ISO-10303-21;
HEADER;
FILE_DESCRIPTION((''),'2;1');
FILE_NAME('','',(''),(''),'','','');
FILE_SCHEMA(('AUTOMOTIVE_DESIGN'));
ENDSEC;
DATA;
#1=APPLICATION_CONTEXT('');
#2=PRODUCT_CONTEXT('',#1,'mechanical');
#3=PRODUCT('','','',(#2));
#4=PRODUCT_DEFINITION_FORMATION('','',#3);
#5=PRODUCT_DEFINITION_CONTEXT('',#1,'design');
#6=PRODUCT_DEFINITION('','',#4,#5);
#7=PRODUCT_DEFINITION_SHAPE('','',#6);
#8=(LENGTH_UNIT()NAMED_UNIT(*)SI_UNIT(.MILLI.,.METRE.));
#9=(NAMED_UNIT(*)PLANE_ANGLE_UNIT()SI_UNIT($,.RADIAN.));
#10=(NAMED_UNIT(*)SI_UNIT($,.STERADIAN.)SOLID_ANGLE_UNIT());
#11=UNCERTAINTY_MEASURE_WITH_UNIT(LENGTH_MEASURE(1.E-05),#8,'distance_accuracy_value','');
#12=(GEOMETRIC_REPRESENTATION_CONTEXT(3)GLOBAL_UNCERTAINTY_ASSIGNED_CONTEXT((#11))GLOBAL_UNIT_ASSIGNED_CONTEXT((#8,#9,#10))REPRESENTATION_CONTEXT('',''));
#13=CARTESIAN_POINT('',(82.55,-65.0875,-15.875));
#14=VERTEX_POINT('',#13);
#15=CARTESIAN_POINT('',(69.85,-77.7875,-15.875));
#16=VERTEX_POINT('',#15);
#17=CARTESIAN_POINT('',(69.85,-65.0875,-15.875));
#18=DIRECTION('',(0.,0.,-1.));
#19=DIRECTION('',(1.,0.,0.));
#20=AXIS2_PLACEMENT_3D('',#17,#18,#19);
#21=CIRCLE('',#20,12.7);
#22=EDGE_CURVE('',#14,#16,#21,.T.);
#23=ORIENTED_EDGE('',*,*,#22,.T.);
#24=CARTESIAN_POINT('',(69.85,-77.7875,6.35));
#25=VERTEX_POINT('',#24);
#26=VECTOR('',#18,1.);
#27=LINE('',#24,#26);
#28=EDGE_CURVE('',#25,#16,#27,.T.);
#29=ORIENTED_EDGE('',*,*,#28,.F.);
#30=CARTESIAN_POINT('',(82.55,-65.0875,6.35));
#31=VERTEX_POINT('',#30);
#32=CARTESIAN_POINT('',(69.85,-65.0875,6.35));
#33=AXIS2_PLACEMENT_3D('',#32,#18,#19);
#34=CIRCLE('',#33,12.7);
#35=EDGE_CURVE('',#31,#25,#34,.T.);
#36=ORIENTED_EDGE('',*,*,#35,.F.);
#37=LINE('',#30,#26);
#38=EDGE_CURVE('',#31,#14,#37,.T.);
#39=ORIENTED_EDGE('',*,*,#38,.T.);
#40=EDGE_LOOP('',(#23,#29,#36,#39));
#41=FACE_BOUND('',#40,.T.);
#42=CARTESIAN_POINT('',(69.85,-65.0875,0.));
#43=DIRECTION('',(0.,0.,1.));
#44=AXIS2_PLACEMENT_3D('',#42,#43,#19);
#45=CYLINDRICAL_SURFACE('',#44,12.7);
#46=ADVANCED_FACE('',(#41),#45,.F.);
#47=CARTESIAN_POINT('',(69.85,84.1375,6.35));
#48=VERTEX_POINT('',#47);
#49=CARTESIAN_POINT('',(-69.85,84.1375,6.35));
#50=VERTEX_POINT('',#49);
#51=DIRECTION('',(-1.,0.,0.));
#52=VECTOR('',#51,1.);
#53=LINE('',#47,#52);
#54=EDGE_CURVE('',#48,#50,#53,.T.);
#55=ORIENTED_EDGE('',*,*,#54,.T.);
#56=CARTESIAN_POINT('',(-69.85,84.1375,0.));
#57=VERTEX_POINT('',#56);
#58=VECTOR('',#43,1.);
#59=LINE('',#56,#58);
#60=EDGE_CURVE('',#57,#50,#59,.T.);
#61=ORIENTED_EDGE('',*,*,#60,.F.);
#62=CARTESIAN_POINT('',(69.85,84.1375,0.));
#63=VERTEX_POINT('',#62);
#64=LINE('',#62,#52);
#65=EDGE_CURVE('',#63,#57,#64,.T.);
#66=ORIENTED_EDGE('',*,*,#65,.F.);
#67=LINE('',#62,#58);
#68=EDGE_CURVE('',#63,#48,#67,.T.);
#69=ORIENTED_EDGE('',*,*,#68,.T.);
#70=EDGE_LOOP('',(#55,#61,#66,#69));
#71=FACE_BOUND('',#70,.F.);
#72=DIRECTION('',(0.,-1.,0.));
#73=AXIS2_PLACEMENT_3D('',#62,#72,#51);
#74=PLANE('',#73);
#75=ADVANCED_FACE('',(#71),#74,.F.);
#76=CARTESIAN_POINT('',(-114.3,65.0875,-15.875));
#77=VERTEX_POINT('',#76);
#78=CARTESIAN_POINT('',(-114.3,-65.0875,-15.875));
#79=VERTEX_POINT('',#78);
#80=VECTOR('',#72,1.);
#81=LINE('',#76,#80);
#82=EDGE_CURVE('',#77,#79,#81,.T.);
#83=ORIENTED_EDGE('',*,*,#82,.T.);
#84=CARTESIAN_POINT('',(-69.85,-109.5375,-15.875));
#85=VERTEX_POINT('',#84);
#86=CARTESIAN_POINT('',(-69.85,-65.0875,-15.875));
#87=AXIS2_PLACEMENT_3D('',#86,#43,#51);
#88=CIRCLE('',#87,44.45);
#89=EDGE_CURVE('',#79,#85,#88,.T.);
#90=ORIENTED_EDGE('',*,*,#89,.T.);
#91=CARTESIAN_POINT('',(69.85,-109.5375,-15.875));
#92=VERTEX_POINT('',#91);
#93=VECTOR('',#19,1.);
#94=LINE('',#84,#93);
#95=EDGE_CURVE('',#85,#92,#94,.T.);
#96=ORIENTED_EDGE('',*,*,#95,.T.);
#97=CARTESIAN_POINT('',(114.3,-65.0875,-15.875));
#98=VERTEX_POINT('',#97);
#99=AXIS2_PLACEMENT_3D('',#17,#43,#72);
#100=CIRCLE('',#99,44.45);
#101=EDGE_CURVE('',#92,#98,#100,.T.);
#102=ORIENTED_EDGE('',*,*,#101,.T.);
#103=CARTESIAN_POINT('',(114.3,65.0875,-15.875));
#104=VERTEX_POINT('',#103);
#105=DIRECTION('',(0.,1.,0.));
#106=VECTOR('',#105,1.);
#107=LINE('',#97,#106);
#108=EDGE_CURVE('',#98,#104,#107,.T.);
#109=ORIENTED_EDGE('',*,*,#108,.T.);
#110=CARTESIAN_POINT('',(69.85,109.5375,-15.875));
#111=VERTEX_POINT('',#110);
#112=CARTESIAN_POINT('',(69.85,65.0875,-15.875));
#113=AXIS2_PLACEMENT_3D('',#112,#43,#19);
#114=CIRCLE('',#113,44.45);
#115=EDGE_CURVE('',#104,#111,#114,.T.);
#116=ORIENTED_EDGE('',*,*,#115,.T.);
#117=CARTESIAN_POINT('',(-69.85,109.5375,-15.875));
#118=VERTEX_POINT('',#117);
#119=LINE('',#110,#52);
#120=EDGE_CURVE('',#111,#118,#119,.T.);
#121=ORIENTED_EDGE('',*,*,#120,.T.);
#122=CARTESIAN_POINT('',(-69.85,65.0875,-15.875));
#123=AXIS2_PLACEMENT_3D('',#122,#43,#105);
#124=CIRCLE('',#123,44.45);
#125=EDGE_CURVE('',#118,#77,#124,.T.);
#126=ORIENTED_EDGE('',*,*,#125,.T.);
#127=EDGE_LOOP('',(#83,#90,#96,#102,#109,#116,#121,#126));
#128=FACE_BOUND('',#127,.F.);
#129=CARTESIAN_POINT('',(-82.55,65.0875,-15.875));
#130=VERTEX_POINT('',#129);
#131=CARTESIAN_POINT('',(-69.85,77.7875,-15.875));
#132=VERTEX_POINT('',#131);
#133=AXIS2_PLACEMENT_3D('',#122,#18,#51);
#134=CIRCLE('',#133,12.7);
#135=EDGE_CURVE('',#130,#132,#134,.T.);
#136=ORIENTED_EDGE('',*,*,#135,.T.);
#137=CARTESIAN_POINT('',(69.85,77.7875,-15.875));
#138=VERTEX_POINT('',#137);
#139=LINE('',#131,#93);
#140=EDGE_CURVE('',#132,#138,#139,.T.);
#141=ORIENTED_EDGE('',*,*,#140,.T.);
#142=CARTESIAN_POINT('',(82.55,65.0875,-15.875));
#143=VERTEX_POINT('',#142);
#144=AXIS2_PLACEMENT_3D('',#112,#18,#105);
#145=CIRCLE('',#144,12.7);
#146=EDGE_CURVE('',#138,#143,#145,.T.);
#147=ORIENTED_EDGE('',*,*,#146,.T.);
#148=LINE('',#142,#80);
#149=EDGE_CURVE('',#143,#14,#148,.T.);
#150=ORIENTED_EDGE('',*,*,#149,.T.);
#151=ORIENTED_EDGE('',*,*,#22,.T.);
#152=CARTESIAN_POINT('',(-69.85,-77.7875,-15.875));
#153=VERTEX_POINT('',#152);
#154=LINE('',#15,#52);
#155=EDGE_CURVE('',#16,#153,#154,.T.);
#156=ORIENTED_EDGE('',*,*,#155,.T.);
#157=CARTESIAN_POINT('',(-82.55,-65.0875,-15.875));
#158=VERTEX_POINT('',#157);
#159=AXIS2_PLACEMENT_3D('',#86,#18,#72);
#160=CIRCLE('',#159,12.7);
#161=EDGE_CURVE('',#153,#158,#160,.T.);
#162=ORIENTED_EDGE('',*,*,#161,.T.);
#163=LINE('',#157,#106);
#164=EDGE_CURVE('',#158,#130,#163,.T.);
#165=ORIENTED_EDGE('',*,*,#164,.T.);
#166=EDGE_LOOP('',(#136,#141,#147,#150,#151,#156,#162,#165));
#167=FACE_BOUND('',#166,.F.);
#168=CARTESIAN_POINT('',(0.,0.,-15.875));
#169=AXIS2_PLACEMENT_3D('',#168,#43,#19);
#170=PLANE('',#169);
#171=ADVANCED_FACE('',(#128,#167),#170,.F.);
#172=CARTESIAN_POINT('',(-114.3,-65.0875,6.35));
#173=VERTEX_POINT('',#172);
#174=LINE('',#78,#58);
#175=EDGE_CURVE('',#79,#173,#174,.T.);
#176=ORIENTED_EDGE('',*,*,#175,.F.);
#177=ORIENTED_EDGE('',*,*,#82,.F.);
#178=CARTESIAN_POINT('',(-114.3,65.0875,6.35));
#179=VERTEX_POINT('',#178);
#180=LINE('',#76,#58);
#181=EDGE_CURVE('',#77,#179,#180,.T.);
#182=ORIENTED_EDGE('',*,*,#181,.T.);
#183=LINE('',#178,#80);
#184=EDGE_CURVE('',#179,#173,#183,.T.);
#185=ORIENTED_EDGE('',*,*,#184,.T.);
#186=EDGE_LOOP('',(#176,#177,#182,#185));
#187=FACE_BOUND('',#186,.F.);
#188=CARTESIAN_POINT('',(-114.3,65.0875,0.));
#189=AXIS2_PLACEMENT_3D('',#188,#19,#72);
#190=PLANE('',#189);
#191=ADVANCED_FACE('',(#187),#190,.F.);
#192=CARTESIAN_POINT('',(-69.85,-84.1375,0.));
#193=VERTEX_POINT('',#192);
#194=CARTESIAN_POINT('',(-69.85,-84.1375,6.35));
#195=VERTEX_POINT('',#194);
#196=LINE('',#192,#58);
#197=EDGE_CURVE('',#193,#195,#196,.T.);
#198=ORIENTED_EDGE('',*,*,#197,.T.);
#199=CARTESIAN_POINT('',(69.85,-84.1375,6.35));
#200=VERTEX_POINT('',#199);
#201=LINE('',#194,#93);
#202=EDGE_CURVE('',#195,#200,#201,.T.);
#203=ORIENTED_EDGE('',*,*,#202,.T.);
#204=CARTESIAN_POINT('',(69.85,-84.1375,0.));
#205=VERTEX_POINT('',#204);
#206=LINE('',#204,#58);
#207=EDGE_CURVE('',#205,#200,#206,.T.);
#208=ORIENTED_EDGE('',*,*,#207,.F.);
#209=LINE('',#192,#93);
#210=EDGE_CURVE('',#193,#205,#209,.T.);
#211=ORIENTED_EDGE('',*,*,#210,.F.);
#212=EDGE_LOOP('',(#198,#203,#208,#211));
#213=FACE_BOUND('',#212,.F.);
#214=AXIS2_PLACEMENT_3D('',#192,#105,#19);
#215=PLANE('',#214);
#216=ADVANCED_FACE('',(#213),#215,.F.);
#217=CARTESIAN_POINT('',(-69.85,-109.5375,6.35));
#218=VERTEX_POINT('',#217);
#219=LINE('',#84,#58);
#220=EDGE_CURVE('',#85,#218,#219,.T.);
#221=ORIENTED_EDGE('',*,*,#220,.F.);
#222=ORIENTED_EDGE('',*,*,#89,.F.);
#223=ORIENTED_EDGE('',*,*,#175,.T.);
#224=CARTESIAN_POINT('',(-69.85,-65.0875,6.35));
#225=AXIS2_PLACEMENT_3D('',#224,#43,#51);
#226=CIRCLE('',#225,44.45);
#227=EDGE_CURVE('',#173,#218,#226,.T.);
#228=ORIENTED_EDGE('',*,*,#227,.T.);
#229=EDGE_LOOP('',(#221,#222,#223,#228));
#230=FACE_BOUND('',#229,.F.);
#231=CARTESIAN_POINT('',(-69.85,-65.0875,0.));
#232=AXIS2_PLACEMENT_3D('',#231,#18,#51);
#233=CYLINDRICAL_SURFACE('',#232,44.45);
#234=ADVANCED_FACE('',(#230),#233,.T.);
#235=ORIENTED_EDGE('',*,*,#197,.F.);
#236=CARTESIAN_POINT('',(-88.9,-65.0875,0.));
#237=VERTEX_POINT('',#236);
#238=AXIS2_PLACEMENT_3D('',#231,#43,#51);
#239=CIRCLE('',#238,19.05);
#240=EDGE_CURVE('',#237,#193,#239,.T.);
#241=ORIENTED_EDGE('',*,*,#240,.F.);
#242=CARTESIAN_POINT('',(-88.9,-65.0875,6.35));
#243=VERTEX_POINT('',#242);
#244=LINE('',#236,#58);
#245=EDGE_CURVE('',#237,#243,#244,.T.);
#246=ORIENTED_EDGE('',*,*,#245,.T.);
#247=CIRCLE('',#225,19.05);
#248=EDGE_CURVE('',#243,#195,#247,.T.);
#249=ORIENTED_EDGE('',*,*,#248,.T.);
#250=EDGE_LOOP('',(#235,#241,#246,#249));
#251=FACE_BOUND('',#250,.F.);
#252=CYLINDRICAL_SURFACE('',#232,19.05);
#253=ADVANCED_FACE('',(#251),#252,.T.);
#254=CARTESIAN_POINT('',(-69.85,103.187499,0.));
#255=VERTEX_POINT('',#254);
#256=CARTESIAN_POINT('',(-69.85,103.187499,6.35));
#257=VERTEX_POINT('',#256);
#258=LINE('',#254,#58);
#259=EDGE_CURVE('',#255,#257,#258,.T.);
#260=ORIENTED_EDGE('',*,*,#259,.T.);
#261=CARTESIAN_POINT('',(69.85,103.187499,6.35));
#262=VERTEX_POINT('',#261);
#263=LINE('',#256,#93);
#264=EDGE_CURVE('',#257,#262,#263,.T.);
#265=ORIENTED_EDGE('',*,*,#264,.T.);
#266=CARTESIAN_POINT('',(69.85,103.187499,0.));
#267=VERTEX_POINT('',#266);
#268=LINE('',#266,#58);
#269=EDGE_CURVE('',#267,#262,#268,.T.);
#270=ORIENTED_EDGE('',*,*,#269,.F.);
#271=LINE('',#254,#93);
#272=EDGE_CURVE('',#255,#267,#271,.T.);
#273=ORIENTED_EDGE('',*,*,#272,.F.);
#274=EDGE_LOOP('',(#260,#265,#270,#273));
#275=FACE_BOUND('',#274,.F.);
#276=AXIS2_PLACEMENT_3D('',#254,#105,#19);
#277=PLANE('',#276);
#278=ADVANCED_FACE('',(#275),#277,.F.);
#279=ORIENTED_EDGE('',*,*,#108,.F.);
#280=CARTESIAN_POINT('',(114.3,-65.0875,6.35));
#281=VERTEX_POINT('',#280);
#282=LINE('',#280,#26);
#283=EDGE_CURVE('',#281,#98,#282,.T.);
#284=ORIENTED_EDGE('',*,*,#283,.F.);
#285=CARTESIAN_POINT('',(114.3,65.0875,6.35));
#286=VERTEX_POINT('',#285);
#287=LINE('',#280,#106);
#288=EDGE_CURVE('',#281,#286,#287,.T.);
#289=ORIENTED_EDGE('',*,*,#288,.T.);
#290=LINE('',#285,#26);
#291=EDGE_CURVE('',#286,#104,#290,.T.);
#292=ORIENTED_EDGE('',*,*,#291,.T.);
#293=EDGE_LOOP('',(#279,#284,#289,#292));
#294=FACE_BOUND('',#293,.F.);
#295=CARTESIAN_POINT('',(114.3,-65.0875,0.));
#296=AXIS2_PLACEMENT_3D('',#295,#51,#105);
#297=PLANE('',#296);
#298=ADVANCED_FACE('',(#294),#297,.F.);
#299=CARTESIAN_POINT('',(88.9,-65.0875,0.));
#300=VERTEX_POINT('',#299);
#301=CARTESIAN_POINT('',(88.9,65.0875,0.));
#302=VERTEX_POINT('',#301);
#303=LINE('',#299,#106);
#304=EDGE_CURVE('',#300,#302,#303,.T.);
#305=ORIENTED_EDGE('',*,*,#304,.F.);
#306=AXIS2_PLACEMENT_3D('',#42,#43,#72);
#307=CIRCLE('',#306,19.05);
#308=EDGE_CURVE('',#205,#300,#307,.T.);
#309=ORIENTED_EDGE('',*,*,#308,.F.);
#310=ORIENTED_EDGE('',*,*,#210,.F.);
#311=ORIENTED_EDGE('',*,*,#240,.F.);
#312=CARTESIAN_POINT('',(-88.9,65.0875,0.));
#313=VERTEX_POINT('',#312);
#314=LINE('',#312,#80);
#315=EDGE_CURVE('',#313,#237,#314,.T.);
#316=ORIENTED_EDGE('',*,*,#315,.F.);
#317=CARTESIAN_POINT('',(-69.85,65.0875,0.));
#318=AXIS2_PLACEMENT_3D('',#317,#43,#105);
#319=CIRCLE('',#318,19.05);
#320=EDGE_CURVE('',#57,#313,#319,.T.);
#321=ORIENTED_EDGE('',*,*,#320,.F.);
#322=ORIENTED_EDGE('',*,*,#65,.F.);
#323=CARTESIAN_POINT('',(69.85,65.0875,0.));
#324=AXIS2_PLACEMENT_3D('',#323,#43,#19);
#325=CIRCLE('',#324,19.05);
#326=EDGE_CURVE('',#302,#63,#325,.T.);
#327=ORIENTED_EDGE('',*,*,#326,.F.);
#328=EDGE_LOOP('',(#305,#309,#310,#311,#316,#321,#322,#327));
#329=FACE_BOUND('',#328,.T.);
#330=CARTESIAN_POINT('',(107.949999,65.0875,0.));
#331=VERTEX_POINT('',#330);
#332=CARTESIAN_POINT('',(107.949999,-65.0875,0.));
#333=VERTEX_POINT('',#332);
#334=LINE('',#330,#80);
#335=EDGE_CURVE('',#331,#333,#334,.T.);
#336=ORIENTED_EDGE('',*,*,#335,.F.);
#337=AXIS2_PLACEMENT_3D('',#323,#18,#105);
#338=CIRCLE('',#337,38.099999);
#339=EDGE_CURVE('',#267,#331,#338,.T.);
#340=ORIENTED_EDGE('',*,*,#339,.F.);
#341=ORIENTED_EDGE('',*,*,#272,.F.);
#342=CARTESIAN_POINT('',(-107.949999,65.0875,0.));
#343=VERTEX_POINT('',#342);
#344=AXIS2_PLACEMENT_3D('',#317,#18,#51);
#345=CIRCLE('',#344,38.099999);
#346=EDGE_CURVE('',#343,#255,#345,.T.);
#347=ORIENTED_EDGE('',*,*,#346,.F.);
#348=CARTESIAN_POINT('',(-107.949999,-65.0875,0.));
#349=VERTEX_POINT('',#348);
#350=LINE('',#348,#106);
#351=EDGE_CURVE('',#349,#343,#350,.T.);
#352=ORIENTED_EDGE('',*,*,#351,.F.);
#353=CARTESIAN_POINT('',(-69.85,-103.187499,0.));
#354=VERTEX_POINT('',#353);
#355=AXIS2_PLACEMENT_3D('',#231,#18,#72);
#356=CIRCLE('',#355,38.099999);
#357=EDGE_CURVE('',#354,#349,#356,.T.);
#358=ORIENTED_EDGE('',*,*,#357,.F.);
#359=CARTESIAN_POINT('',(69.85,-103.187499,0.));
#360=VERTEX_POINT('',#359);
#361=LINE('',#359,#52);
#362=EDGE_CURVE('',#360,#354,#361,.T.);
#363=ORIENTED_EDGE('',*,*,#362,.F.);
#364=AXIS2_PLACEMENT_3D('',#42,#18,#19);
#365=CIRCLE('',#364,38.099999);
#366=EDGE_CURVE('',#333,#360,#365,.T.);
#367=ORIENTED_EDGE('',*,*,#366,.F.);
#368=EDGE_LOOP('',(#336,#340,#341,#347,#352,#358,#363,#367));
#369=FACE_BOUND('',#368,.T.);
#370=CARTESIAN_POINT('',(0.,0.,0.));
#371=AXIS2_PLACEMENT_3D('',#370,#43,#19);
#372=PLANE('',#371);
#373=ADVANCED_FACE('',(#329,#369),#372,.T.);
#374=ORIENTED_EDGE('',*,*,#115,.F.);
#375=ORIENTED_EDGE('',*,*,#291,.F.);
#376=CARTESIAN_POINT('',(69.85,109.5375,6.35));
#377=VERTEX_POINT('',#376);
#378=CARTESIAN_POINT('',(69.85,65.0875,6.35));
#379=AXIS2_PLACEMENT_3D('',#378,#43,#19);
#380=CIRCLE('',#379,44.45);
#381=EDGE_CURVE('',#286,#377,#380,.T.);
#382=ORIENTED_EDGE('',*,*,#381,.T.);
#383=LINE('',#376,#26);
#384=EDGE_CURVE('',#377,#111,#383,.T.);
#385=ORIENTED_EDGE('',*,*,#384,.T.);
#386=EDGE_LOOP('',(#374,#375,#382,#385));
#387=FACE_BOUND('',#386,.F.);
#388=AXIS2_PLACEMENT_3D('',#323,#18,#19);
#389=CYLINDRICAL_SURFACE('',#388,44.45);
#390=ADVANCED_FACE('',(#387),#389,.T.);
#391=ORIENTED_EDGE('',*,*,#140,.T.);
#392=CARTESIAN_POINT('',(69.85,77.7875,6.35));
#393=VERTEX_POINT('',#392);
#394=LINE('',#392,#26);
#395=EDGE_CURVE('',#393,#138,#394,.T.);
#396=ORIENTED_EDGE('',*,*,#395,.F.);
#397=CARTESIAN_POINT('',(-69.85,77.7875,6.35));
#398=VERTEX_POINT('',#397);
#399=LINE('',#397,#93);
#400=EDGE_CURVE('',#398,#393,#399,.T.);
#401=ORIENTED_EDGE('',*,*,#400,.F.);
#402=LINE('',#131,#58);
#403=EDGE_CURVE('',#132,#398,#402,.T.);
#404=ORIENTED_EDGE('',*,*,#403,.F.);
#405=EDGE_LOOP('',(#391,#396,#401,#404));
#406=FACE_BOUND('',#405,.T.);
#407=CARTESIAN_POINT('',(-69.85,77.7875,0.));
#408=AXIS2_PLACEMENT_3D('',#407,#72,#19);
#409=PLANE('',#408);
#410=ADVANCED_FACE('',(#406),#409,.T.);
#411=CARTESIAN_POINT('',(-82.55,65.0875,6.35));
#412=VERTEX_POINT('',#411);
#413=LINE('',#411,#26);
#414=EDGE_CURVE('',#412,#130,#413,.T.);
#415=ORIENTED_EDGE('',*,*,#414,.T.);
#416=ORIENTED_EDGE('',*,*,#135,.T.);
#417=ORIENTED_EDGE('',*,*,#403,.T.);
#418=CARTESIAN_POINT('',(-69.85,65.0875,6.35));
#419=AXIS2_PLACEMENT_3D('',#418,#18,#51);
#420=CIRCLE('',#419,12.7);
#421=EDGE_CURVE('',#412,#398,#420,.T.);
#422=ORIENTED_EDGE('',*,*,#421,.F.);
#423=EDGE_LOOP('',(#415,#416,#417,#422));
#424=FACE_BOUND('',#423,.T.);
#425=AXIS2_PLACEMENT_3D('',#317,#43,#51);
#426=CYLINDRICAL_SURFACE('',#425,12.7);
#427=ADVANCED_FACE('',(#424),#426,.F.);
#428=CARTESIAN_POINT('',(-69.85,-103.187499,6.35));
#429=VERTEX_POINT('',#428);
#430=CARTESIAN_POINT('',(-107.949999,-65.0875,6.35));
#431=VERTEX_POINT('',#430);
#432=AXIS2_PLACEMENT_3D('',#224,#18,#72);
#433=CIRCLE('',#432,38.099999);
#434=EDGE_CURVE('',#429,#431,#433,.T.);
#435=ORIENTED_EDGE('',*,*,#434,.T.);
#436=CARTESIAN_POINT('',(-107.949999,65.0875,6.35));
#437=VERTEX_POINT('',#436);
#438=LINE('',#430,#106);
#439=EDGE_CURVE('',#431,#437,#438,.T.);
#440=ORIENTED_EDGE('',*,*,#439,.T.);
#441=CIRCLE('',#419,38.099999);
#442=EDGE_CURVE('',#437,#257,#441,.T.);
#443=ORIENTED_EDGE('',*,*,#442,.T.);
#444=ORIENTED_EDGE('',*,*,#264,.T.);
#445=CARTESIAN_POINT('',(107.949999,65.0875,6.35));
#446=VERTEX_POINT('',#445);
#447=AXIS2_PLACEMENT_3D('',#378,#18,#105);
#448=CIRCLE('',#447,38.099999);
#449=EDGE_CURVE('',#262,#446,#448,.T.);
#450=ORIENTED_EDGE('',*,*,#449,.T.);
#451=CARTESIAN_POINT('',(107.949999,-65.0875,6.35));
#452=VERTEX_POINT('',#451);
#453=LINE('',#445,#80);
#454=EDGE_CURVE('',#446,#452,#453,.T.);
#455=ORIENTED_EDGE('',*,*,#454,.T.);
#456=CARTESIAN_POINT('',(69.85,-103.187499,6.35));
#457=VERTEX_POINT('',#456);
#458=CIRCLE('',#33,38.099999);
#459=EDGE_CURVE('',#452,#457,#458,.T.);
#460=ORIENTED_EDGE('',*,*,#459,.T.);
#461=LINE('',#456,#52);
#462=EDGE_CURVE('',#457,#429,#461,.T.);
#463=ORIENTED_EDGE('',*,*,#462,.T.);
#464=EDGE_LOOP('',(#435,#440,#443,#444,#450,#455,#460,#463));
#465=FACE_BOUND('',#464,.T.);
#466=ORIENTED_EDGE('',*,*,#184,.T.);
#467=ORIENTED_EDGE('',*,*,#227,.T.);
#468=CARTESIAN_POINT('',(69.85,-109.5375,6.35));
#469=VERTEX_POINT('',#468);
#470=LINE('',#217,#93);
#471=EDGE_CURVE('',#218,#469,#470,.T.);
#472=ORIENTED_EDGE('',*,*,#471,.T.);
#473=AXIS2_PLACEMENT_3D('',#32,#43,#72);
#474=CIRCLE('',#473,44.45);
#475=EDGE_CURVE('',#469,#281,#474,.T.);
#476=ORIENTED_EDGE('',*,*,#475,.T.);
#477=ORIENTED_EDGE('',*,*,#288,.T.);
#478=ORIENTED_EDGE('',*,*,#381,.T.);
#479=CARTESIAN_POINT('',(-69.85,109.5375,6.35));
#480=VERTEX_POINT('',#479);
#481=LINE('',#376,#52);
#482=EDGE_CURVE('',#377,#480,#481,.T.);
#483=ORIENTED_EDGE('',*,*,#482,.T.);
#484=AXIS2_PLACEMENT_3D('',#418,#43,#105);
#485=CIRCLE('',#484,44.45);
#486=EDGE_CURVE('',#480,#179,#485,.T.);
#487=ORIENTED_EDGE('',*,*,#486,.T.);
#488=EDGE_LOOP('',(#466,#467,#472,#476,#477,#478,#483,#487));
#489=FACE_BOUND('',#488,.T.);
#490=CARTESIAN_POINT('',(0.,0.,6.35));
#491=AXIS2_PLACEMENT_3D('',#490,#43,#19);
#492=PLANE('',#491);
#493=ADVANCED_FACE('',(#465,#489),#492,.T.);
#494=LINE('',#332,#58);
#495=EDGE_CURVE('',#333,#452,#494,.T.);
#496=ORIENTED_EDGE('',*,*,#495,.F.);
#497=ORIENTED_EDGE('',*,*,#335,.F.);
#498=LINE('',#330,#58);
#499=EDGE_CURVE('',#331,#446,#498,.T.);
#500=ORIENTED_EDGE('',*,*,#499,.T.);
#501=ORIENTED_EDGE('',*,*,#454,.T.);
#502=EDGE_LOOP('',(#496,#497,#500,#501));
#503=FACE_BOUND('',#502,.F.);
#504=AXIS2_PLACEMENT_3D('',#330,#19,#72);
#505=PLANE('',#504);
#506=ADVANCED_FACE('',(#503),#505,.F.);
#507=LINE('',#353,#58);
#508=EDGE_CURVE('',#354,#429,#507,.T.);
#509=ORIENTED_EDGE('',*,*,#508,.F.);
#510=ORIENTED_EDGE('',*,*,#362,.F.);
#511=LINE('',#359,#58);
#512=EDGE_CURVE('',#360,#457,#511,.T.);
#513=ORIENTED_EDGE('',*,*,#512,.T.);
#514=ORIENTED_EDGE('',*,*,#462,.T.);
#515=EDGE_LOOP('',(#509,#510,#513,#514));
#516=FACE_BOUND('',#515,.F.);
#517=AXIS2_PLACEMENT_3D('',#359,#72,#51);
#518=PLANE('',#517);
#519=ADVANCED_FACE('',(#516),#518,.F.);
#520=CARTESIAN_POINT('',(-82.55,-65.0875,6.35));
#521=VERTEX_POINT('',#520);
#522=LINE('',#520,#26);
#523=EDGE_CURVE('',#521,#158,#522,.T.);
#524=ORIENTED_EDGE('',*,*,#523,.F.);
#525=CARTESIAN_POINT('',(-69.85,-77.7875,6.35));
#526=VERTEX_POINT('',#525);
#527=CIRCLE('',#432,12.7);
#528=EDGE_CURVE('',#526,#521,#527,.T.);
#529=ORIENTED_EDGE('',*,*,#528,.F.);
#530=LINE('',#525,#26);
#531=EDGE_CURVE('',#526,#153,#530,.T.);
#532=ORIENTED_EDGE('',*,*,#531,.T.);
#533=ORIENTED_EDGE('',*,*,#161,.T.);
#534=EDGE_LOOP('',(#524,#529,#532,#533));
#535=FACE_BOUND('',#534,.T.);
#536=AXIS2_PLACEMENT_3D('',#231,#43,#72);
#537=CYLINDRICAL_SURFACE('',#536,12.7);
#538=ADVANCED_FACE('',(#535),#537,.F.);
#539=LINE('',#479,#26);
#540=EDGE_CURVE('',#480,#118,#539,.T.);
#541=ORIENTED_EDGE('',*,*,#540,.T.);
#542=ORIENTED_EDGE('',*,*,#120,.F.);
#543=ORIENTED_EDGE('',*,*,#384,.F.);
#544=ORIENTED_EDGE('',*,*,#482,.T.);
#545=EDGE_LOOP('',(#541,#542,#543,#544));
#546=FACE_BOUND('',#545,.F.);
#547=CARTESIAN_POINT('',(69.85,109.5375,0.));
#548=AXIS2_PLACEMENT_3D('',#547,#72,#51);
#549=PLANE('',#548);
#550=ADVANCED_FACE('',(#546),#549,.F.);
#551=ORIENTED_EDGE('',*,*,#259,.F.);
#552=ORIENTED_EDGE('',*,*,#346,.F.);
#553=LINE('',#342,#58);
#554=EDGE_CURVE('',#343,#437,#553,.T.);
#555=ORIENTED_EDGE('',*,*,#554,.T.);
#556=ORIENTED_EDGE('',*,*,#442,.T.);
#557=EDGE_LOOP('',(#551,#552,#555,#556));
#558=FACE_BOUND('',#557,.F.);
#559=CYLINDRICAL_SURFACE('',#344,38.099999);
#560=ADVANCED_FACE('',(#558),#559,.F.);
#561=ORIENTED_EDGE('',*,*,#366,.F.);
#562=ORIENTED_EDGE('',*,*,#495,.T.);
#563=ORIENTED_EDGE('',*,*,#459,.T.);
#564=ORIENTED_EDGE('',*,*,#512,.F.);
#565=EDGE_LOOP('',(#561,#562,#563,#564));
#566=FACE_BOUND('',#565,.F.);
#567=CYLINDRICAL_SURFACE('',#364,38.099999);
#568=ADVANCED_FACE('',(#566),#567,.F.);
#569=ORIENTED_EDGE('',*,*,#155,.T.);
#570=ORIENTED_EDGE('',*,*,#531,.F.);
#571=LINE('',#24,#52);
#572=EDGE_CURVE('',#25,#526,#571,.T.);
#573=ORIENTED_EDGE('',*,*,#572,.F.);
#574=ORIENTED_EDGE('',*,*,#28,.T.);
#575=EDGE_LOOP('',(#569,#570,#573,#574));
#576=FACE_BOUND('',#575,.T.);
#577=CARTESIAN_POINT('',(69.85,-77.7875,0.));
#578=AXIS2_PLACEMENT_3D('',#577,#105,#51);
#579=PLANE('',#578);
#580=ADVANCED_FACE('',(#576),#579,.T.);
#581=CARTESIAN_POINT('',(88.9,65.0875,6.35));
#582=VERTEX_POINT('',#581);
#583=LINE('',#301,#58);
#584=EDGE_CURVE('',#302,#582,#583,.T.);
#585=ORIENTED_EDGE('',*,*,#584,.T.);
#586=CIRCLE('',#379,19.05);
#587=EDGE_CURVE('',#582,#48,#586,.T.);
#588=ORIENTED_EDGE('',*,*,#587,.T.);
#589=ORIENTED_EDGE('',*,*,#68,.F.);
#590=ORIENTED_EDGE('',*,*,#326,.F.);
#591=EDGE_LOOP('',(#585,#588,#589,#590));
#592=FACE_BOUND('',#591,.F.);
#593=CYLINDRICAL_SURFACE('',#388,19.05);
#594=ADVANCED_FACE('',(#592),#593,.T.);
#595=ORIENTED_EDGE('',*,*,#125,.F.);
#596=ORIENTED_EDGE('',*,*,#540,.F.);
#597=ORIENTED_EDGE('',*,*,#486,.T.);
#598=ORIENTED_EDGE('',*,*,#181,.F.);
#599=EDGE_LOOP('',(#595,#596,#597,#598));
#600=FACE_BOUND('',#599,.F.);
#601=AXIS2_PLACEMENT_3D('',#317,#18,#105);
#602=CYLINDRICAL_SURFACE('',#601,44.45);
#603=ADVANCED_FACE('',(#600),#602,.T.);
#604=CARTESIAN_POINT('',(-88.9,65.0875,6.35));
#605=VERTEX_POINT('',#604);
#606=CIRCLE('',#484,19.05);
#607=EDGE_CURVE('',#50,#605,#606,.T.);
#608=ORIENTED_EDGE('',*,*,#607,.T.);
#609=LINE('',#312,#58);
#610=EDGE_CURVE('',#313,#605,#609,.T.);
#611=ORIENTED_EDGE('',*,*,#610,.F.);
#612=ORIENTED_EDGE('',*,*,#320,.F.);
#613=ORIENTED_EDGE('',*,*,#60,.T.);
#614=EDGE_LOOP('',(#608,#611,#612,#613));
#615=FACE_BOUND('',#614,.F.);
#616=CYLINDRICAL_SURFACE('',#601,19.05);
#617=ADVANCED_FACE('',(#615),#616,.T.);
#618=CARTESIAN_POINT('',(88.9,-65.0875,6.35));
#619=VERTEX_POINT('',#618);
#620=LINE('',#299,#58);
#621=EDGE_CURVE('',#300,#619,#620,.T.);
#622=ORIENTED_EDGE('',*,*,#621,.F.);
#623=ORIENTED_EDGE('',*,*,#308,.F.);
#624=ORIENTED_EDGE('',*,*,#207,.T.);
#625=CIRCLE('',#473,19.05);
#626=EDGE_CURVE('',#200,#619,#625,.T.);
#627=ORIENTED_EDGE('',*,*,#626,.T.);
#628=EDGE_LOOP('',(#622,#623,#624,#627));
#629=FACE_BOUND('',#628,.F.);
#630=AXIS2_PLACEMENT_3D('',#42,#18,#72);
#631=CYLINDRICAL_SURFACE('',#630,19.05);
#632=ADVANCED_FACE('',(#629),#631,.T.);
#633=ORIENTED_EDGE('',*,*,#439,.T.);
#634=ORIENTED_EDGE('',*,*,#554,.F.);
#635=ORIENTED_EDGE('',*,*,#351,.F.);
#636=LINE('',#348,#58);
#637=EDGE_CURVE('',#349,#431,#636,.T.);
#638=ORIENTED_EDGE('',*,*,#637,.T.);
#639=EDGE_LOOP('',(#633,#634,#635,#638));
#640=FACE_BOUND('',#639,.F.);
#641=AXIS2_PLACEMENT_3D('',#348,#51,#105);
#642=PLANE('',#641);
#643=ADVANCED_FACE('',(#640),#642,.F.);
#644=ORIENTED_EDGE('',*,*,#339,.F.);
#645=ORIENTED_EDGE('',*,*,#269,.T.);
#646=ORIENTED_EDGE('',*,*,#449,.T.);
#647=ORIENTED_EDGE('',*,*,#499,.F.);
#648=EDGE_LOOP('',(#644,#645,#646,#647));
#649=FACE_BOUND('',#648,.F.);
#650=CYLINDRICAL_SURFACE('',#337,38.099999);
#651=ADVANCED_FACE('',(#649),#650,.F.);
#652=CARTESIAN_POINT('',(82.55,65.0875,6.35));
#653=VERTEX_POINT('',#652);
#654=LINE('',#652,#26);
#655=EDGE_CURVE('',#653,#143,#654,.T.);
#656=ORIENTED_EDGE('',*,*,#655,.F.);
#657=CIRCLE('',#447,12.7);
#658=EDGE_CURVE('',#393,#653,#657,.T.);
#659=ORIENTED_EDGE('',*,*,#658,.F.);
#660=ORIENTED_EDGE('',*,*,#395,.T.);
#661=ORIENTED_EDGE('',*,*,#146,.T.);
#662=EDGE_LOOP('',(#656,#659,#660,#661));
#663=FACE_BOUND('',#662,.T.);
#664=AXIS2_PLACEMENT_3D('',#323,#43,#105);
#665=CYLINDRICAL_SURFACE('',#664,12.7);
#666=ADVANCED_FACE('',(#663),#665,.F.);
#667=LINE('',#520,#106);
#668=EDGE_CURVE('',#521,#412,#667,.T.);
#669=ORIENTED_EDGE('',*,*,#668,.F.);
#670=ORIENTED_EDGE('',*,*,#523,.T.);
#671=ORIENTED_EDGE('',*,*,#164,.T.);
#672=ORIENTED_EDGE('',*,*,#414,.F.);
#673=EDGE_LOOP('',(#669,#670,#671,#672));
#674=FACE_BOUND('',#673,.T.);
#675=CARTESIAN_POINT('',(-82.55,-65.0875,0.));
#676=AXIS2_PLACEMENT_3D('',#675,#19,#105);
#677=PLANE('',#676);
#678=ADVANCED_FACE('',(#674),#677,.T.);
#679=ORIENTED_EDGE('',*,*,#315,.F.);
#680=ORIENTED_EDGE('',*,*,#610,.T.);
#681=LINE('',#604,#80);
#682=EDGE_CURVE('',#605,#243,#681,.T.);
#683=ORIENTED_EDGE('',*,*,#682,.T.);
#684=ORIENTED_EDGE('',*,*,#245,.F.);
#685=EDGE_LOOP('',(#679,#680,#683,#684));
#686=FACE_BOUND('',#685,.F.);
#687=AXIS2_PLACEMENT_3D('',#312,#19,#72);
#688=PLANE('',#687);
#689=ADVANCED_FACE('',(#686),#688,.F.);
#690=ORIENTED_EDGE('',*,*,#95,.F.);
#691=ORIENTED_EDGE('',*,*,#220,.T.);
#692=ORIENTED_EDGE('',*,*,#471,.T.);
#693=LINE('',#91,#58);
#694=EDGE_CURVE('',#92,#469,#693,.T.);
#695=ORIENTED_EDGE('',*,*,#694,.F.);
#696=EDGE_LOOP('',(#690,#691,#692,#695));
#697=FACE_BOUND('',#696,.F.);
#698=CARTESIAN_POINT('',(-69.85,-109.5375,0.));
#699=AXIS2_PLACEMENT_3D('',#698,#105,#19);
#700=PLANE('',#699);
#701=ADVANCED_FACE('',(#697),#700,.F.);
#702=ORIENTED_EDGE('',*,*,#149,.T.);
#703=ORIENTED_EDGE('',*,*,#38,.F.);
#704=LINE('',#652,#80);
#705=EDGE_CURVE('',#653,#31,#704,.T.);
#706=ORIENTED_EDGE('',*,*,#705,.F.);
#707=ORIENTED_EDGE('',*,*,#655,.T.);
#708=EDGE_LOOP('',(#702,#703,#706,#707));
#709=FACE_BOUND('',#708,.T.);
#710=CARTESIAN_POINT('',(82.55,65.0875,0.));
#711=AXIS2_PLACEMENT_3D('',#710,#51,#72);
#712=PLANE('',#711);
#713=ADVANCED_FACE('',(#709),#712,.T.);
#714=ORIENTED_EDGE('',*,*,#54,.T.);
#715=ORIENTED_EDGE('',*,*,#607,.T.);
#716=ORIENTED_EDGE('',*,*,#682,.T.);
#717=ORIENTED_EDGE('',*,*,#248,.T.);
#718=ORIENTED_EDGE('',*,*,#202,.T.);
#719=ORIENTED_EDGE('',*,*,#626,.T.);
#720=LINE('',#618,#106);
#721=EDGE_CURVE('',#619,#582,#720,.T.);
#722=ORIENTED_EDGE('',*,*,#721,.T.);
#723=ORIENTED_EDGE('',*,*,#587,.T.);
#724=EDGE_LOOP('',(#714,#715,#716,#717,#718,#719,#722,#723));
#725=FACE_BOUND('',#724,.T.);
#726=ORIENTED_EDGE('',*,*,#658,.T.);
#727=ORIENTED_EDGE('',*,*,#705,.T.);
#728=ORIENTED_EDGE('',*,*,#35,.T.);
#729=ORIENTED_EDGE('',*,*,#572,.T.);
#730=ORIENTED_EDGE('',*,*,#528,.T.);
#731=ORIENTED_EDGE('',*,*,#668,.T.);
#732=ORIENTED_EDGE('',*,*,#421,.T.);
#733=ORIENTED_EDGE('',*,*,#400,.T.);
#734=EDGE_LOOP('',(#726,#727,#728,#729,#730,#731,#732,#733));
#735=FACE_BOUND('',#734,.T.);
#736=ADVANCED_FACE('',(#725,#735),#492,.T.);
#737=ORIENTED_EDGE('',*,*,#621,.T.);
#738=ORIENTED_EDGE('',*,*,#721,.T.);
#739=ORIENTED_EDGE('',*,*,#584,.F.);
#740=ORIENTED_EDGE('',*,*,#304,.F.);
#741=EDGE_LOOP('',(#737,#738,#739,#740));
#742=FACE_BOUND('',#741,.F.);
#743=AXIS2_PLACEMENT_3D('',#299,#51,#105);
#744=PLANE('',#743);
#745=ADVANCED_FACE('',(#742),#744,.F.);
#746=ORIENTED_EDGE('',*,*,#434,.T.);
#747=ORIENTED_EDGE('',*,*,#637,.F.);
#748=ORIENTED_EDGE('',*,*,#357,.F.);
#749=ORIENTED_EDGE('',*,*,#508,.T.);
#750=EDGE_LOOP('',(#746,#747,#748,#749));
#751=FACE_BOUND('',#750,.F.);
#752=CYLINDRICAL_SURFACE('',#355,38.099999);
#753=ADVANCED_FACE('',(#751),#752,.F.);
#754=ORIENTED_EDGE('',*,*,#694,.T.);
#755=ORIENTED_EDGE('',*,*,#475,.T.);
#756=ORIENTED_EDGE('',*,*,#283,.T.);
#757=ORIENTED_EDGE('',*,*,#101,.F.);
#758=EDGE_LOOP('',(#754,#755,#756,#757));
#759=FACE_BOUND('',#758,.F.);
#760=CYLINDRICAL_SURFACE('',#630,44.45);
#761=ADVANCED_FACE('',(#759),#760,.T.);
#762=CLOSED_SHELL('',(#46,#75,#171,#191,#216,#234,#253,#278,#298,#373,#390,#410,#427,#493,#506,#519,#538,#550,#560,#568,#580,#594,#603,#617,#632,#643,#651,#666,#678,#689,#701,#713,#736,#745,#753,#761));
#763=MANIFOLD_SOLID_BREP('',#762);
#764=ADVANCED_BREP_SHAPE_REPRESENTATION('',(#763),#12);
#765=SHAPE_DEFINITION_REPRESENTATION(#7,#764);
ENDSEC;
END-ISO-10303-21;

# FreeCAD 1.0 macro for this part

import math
import FreeCAD as App
import Part
import Sketcher

V = App.Vector
Q = App.Units.Quantity

doc = App.newDocument("Part")
body = doc.addObject("PartDesign::Body", "Body")

sketch1 = doc.addObject("Sketcher::SketchObject", "Sketch")
body.addObject(sketch1)
sketch1.AttachmentSupport = (doc.XY_Plane, [""])
sketch1.MapMode = "FlatFace"
sketch1.addGeometry(Part.ArcOfCircle(Part.Circle(V(-70, 65, 0), V(0, 0, 1), 44), math.radians(90), math.radians(180)), False)
sketch1.addGeometry(Part.LineSegment(V(-114, 65, 0), V(-114, -65, 0)), False)
sketch1.addGeometry(Part.ArcOfCircle(Part.Circle(V(-70, -65, 0), V(0, 0, 1), 44), math.radians(180), math.radians(270)), False)
sketch1.addGeometry(Part.LineSegment(V(-70, -110, 0), V(70, -110, 0)), False)
sketch1.addGeometry(Part.ArcOfCircle(Part.Circle(V(70, -65, 0), V(0, 0, 1), 44), math.radians(-90), math.radians(0)), False)
sketch1.addGeometry(Part.LineSegment(V(114, -65, 0), V(114, 65, 0)), False)
sketch1.addGeometry(Part.ArcOfCircle(Part.Circle(V(70, 65, 0), V(0, 0, 1), 44), math.radians(0), math.radians(90)), False)
sketch1.addGeometry(Part.LineSegment(V(70, 110, 0), V(-70, 110, 0)), False)
sketch1.addGeometry(Part.ArcOfCircle(Part.Circle(V(-70, 65, 0), V(0, 0, 1), 13), math.radians(90), math.radians(180)), False)
sketch1.addGeometry(Part.LineSegment(V(-70, 78, 0), V(70, 78, 0)), False)
sketch1.addGeometry(Part.ArcOfCircle(Part.Circle(V(70, 65, 0), V(0, 0, 1), 13), math.radians(0), math.radians(90)), False)
sketch1.addGeometry(Part.LineSegment(V(83, 65, 0), V(83, -65, 0)), False)
sketch1.addGeometry(Part.ArcOfCircle(Part.Circle(V(70, -65, 0), V(0, 0, 1), 13), math.radians(-90), math.radians(0)), False)
sketch1.addGeometry(Part.LineSegment(V(70, -78, 0), V(-70, -78, 0)), False)
sketch1.addGeometry(Part.ArcOfCircle(Part.Circle(V(-70, -65, 0), V(0, 0, 1), 13), math.radians(180), math.radians(270)), False)
sketch1.addGeometry(Part.LineSegment(V(-83, -65, 0), V(-83, 65, 0)), False)
sketch1.addConstraint(Sketcher.Constraint("Tangent", 0, 2, 1, 1))
sketch1.addConstraint(Sketcher.Constraint("Tangent", 1, 2, 2, 1))
sketch1.addConstraint(Sketcher.Constraint("Tangent", 2, 2, 3, 1))
sketch1.addConstraint(Sketcher.Constraint("Tangent", 3, 2, 4, 1))
sketch1.addConstraint(Sketcher.Constraint("Tangent", 4, 2, 5, 1))
sketch1.addConstraint(Sketcher.Constraint("Tangent", 5, 2, 6, 1))
sketch1.addConstraint(Sketcher.Constraint("Tangent", 6, 2, 7, 1))
sketch1.addConstraint(Sketcher.Constraint("Tangent", 7, 2, 0, 1))
sketch1.addConstraint(Sketcher.Constraint("Tangent", 8, 1, 9, 1))
sketch1.addConstraint(Sketcher.Constraint("Tangent", 9, 2, 10, 2))
sketch1.addConstraint(Sketcher.Constraint("Tangent", 10, 1, 11, 1))
sketch1.addConstraint(Sketcher.Constraint("Tangent", 11, 2, 12, 2))
sketch1.addConstraint(Sketcher.Constraint("Tangent", 12, 1, 13, 1))
sketch1.addConstraint(Sketcher.Constraint("Tangent", 13, 2, 14, 2))
sketch1.addConstraint(Sketcher.Constraint("Tangent", 14, 1, 15, 1))
sketch1.addConstraint(Sketcher.Constraint("Tangent", 15, 2, 8, 2))
sketch1.addConstraint(Sketcher.Constraint("Vertical", 1))
sketch1.addConstraint(Sketcher.Constraint("Horizontal", 3))
sketch1.addConstraint(Sketcher.Constraint("Vertical", 5))
sketch1.addConstraint(Sketcher.Constraint("Horizontal", 7))
sketch1.addConstraint(Sketcher.Constraint("Horizontal", 9))
sketch1.addConstraint(Sketcher.Constraint("Vertical", 11))
sketch1.addConstraint(Sketcher.Constraint("Horizontal", 13))
sketch1.addConstraint(Sketcher.Constraint("Vertical", 15))
sketch1.addConstraint(Sketcher.Constraint("Coincident", 8, 3, 0, 3))
sketch1.addConstraint(Sketcher.Constraint("Coincident", 10, 3, 6, 3))
sketch1.addConstraint(Sketcher.Constraint("Coincident", 12, 3, 4, 3))
sketch1.addConstraint(Sketcher.Constraint("Equal", 0, 2))
sketch1.addConstraint(Sketcher.Constraint("Equal", 2, 4))
sketch1.addConstraint(Sketcher.Constraint("Equal", 4, 6))
sketch1.addConstraint(Sketcher.Constraint("Equal", 12, 14))
sketch1.addConstraint(Sketcher.Constraint("Symmetric", 0, 3, 4, 3, -1, 1))
sketch1.addConstraint(Sketcher.Constraint("Radius", 8, Q("0.5 in")))
sketch1.addConstraint(Sketcher.Constraint("Radius", 0, Q("1.75 in")))
sketch1.addConstraint(Sketcher.Constraint("DistanceX", 3, 1, 3, 2, Q("5.5 in")))
sketch1.addConstraint(Sketcher.Constraint("DistanceY", 1, 2, 1, 1, Q("5.125 in")))
pad1 = doc.addObject("PartDesign::Pad", "Pad")
body.addObject(pad1)
pad1.Profile = sketch1
pad1.Length = Q("0.625 in")
pad1.Reversed = True

sketch2 = doc.addObject("Sketcher::SketchObject", "Sketch001")
body.addObject(sketch2)
sketch2.AttachmentSupport = (doc.XY_Plane, [""])
sketch2.MapMode = "FlatFace"
sketch2.addGeometry(Part.ArcOfCircle(Part.Circle(V(70, 65, 0), V(0, 0, 1), 38), math.radians(0), math.radians(90)), False)
sketch2.addGeometry(Part.LineSegment(V(70, 103, 0), V(-70, 103, 0)), False)
sketch2.addGeometry(Part.ArcOfCircle(Part.Circle(V(-70, 65, 0), V(0, 0, 1), 38), math.radians(90), math.radians(180)), False)
sketch2.addGeometry(Part.LineSegment(V(-108, 65, 0), V(-108, -65, 0)), False)
sketch2.addGeometry(Part.ArcOfCircle(Part.Circle(V(-70, -65, 0), V(0, 0, 1), 38), math.radians(180), math.radians(270)), False)
sketch2.addGeometry(Part.LineSegment(V(-70, -103, 0), V(70, -103, 0)), False)
sketch2.addGeometry(Part.ArcOfCircle(Part.Circle(V(70, -65, 0), V(0, 0, 1), 38), math.radians(-90), math.radians(0)), False)
sketch2.addGeometry(Part.LineSegment(V(108, -65, 0), V(108, 65, 0)), False)
sketch2.addGeometry(Part.ArcOfCircle(Part.Circle(V(-70, -65, 0), V(0, 0, 1), 20), math.radians(180), math.radians(270)), False)
sketch2.addGeometry(Part.LineSegment(V(-90, -65, 0), V(-90, 65, 0)), False)
sketch2.addGeometry(Part.ArcOfCircle(Part.Circle(V(-70, 65, 0), V(0, 0, 1), 20), math.radians(90), math.radians(180)), False)
sketch2.addGeometry(Part.LineSegment(V(-70, 85, 0), V(70, 85, 0)), False)
sketch2.addGeometry(Part.ArcOfCircle(Part.Circle(V(70, 65, 0), V(0, 0, 1), 20), math.radians(0), math.radians(90)), False)
sketch2.addGeometry(Part.LineSegment(V(90, 65, 0), V(90, -65, 0)), False)
sketch2.addGeometry(Part.ArcOfCircle(Part.Circle(V(70, -65, 0), V(0, 0, 1), 20), math.radians(-90), math.radians(0)), False)
sketch2.addGeometry(Part.LineSegment(V(70, -85, 0), V(-70, -85, 0)), False)
sketch2.addConstraint(Sketcher.Constraint("Tangent", 0, 2, 1, 1))
sketch2.addConstraint(Sketcher.Constraint("Tangent", 1, 2, 2, 1))
sketch2.addConstraint(Sketcher.Constraint("Tangent", 2, 2, 3, 1))
sketch2.addConstraint(Sketcher.Constraint("Tangent", 3, 2, 4, 1))
sketch2.addConstraint(Sketcher.Constraint("Tangent", 4, 2, 5, 1))
sketch2.addConstraint(Sketcher.Constraint("Tangent", 5, 2, 6, 1))
sketch2.addConstraint(Sketcher.Constraint("Tangent", 6, 2, 7, 1))
sketch2.addConstraint(Sketcher.Constraint("Tangent", 7, 2, 0, 1))
sketch2.addConstraint(Sketcher.Constraint("Tangent", 8, 1, 9, 1))
sketch2.addConstraint(Sketcher.Constraint("Tangent", 9, 2, 10, 2))
sketch2.addConstraint(Sketcher.Constraint("Tangent", 10, 1, 11, 1))
sketch2.addConstraint(Sketcher.Constraint("Tangent", 11, 2, 12, 2))
sketch2.addConstraint(Sketcher.Constraint("Tangent", 12, 1, 13, 1))
sketch2.addConstraint(Sketcher.Constraint("Tangent", 13, 2, 14, 2))
sketch2.addConstraint(Sketcher.Constraint("Tangent", 14, 1, 15, 1))
sketch2.addConstraint(Sketcher.Constraint("Tangent", 15, 2, 8, 2))
sketch2.addConstraint(Sketcher.Constraint("Horizontal", 1))
sketch2.addConstraint(Sketcher.Constraint("Vertical", 3))
sketch2.addConstraint(Sketcher.Constraint("Horizontal", 5))
sketch2.addConstraint(Sketcher.Constraint("Vertical", 7))
sketch2.addConstraint(Sketcher.Constraint("Vertical", 9))
sketch2.addConstraint(Sketcher.Constraint("Horizontal", 11))
sketch2.addConstraint(Sketcher.Constraint("Vertical", 13))
sketch2.addConstraint(Sketcher.Constraint("Horizontal", 15))
sketch2.addConstraint(Sketcher.Constraint("Coincident", 8, 3, 4, 3))
sketch2.addConstraint(Sketcher.Constraint("Coincident", 10, 3, 2, 3))
sketch2.addConstraint(Sketcher.Constraint("Coincident", 12, 3, 0, 3))
sketch2.addConstraint(Sketcher.Constraint("Equal", 0, 2))
sketch2.addConstraint(Sketcher.Constraint("Equal", 2, 4))
sketch2.addConstraint(Sketcher.Constraint("Equal", 4, 6))
sketch2.addConstraint(Sketcher.Constraint("Equal", 12, 14))
sketch2.addConstraint(Sketcher.Constraint("Symmetric", 0, 3, 4, 3, -1, 1))
sketch2.addConstraint(Sketcher.Constraint("Radius", 0, Q("1.5 in")))
sketch2.addConstraint(Sketcher.Constraint("Radius", 8, Q("0.78 in")))
sketch2.addConstraint(Sketcher.Constraint("DistanceX", 1, 2, 1, 1, Q("5.5 in")))
sketch2.addConstraint(Sketcher.Constraint("DistanceY", 3, 2, 3, 1, Q("5.125 in")))
pocket1 = doc.addObject("PartDesign::Pocket", "Pocket")
body.addObject(pocket1)
pocket1.Profile = sketch2
pocket1.Length = Q("0.375 in")
pocket1.Reversed = True

sketch3 = doc.addObject("Sketcher::SketchObject", "Sketch002")
body.addObject(sketch3)
sketch3.AttachmentSupport = (doc.XY_Plane, [""])
sketch3.MapMode = "FlatFace"
sketch3.addGeometry(Part.ArcOfCircle(Part.Circle(V(-70, 65, 0), V(0, 0, 1), 44), math.radians(90), math.radians(180)), False)
sketch3.addGeometry(Part.LineSegment(V(-114, 65, 0), V(-114, -65, 0)), False)
sketch3.addGeometry(Part.ArcOfCircle(Part.Circle(V(-70, -65, 0), V(0, 0, 1), 44), math.radians(180), math.radians(270)), False)
sketch3.addGeometry(Part.LineSegment(V(-70, -110, 0), V(70, -110, 0)), False)
sketch3.addGeometry(Part.ArcOfCircle(Part.Circle(V(70, -65, 0), V(0, 0, 1), 44), math.radians(-90), math.radians(0)), False)
sketch3.addGeometry(Part.LineSegment(V(114, -65, 0), V(114, 65, 0)), False)
sketch3.addGeometry(Part.ArcOfCircle(Part.Circle(V(70, 65, 0), V(0, 0, 1), 44), math.radians(0), math.radians(90)), False)
sketch3.addGeometry(Part.LineSegment(V(70, 110, 0), V(-70, 110, 0)), False)
sketch3.addGeometry(Part.ArcOfCircle(Part.Circle(V(-70, 65, 0), V(0, 0, 1), 38), math.radians(90), math.radians(180)), False)
sketch3.addGeometry(Part.LineSegment(V(-70, 103, 0), V(70, 103, 0)), False)
sketch3.addGeometry(Part.ArcOfCircle(Part.Circle(V(70, 65, 0), V(0, 0, 1), 38), math.radians(0), math.radians(90)), False)
sketch3.addGeometry(Part.LineSegment(V(108, 65, 0), V(108, -65, 0)), False)
sketch3.addGeometry(Part.ArcOfCircle(Part.Circle(V(70, -65, 0), V(0, 0, 1), 38), math.radians(-90), math.radians(0)), False)
sketch3.addGeometry(Part.LineSegment(V(70, -103, 0), V(-70, -103, 0)), False)
sketch3.addGeometry(Part.ArcOfCircle(Part.Circle(V(-70, -65, 0), V(0, 0, 1), 38), math.radians(180), math.radians(270)), False)
sketch3.addGeometry(Part.LineSegment(V(-108, -65, 0), V(-108, 65, 0)), False)
sketch3.addGeometry(Part.LineSegment(V(70, 84, 0), V(-70, 84, 0)), False)
sketch3.addGeometry(Part.ArcOfCircle(Part.Circle(V(-70, 65, 0), V(0, 0, 1), 19), math.radians(90), math.radians(180)), False)
sketch3.addGeometry(Part.LineSegment(V(-89, 65, 0), V(-89, -65, 0)), False)
sketch3.addGeometry(Part.ArcOfCircle(Part.Circle(V(-70, -65, 0), V(0, 0, 1), 19), math.radians(180), math.radians(270)), False)
sketch3.addGeometry(Part.LineSegment(V(-70, -84, 0), V(70, -84, 0)), False)
sketch3.addGeometry(Part.ArcOfCircle(Part.Circle(V(70, -65, 0), V(0, 0, 1), 19), math.radians(-90), math.radians(0)), False)
sketch3.addGeometry(Part.LineSegment(V(89, -65, 0), V(89, 65, 0)), False)
sketch3.addGeometry(Part.ArcOfCircle(Part.Circle(V(70, 65, 0), V(0, 0, 1), 19), math.radians(0), math.radians(90)), False)
sketch3.addGeometry(Part.ArcOfCircle(Part.Circle(V(-70, 65, 0), V(0, 0, 1), 13), math.radians(90), math.radians(180)), False)
sketch3.addGeometry(Part.LineSegment(V(-70, 78, 0), V(70, 78, 0)), False)
sketch3.addGeometry(Part.ArcOfCircle(Part.Circle(V(70, 65, 0), V(0, 0, 1), 13), math.radians(0), math.radians(90)), False)
sketch3.addGeometry(Part.LineSegment(V(83, 65, 0), V(83, -65, 0)), False)
sketch3.addGeometry(Part.ArcOfCircle(Part.Circle(V(70, -65, 0), V(0, 0, 1), 13), math.radians(-90), math.radians(0)), False)
sketch3.addGeometry(Part.LineSegment(V(70, -78, 0), V(-70, -78, 0)), False)
sketch3.addGeometry(Part.ArcOfCircle(Part.Circle(V(-70, -65, 0), V(0, 0, 1), 13), math.radians(180), math.radians(270)), False)
sketch3.addGeometry(Part.LineSegment(V(-83, -65, 0), V(-83, 65, 0)), False)
sketch3.addConstraint(Sketcher.Constraint("Tangent", 0, 2, 1, 1))
sketch3.addConstraint(Sketcher.Constraint("Tangent", 1, 2, 2, 1))
sketch3.addConstraint(Sketcher.Constraint("Tangent", 2, 2, 3, 1))
sketch3.addConstraint(Sketcher.Constraint("Tangent", 3, 2, 4, 1))
sketch3.addConstraint(Sketcher.Constraint("Tangent", 4, 2, 5, 1))
sketch3.addConstraint(Sketcher.Constraint("Tangent", 5, 2, 6, 1))
sketch3.addConstraint(Sketcher.Constraint("Tangent", 6, 2, 7, 1))
sketch3.addConstraint(Sketcher.Constraint("Tangent", 7, 2, 0, 1))
sketch3.addConstraint(Sketcher.Constraint("Tangent", 8, 1, 9, 1))
sketch3.addConstraint(Sketcher.Constraint("Tangent", 9, 2, 10, 2))
sketch3.addConstraint(Sketcher.Constraint("Tangent", 10, 1, 11, 1))
sketch3.addConstraint(Sketcher.Constraint("Tangent", 11, 2, 12, 2))
sketch3.addConstraint(Sketcher.Constraint("Tangent", 12, 1, 13, 1))
sketch3.addConstraint(Sketcher.Constraint("Tangent", 13, 2, 14, 2))
sketch3.addConstraint(Sketcher.Constraint("Tangent", 14, 1, 15, 1))
sketch3.addConstraint(Sketcher.Constraint("Tangent", 15, 2, 8, 2))
sketch3.addConstraint(Sketcher.Constraint("Tangent", 16, 2, 17, 1))
sketch3.addConstraint(Sketcher.Constraint("Tangent", 17, 2, 18, 1))
sketch3.addConstraint(Sketcher.Constraint("Tangent", 18, 2, 19, 1))
sketch3.addConstraint(Sketcher.Constraint("Tangent", 19, 2, 20, 1))
sketch3.addConstraint(Sketcher.Constraint("Tangent", 20, 2, 21, 1))
sketch3.addConstraint(Sketcher.Constraint("Tangent", 21, 2, 22, 1))
sketch3.addConstraint(Sketcher.Constraint("Tangent", 22, 2, 23, 1))
sketch3.addConstraint(Sketcher.Constraint("Tangent", 23, 2, 16, 1))
sketch3.addConstraint(Sketcher.Constraint("Tangent", 24, 1, 25, 1))
sketch3.addConstraint(Sketcher.Constraint("Tangent", 25, 2, 26, 2))
sketch3.addConstraint(Sketcher.Constraint("Tangent", 26, 1, 27, 1))
sketch3.addConstraint(Sketcher.Constraint("Tangent", 27, 2, 28, 2))
sketch3.addConstraint(Sketcher.Constraint("Tangent", 28, 1, 29, 1))
sketch3.addConstraint(Sketcher.Constraint("Tangent", 29, 2, 30, 2))
sketch3.addConstraint(Sketcher.Constraint("Tangent", 30, 1, 31, 1))
sketch3.addConstraint(Sketcher.Constraint("Tangent", 31, 2, 24, 2))
sketch3.addConstraint(Sketcher.Constraint("Vertical", 1))
sketch3.addConstraint(Sketcher.Constraint("Horizontal", 3))
sketch3.addConstraint(Sketcher.Constraint("Vertical", 5))
sketch3.addConstraint(Sketcher.Constraint("Horizontal", 7))
sketch3.addConstraint(Sketcher.Constraint("Horizontal", 9))
sketch3.addConstraint(Sketcher.Constraint("Vertical", 11))
sketch3.addConstraint(Sketcher.Constraint("Horizontal", 13))
sketch3.addConstraint(Sketcher.Constraint("Vertical", 15))
sketch3.addConstraint(Sketcher.Constraint("Horizontal", 16))
sketch3.addConstraint(Sketcher.Constraint("Vertical", 18))
sketch3.addConstraint(Sketcher.Constraint("Horizontal", 20))
sketch3.addConstraint(Sketcher.Constraint("Vertical", 22))
sketch3.addConstraint(Sketcher.Constraint("Horizontal", 25))
sketch3.addConstraint(Sketcher.Constraint("Vertical", 27))
sketch3.addConstraint(Sketcher.Constraint("Horizontal", 29))
sketch3.addConstraint(Sketcher.Constraint("Vertical", 31))
sketch3.addConstraint(Sketcher.Constraint("Coincident", 8, 3, 0, 3))
sketch3.addConstraint(Sketcher.Constraint("Coincident", 10, 3, 6, 3))
sketch3.addConstraint(Sketcher.Constraint("Coincident", 12, 3, 4, 3))
sketch3.addConstraint(Sketcher.Constraint("Coincident", 17, 3, 0, 3))
sketch3.addConstraint(Sketcher.Constraint("Coincident", 19, 3, 2, 3))
sketch3.addConstraint(Sketcher.Constraint("Coincident", 21, 3, 4, 3))
sketch3.addConstraint(Sketcher.Constraint("Coincident", 24, 3, 0, 3))
sketch3.addConstraint(Sketcher.Constraint("Coincident", 26, 3, 6, 3))
sketch3.addConstraint(Sketcher.Constraint("Coincident", 28, 3, 4, 3))
sketch3.addConstraint(Sketcher.Constraint("Equal", 0, 2))
sketch3.addConstraint(Sketcher.Constraint("Equal", 2, 4))
sketch3.addConstraint(Sketcher.Constraint("Equal", 4, 6))
sketch3.addConstraint(Sketcher.Constraint("Equal", 12, 14))
sketch3.addConstraint(Sketcher.Constraint("Equal", 21, 23))
sketch3.addConstraint(Sketcher.Constraint("Equal", 28, 30))
sketch3.addConstraint(Sketcher.Constraint("Symmetric", 0, 3, 4, 3, -1, 1))
sketch3.addConstraint(Sketcher.Constraint("Radius", 8, Q("1.5 in")))
sketch3.addConstraint(Sketcher.Constraint("Radius", 24, Q("0.5 in")))
sketch3.addConstraint(Sketcher.Constraint("Radius", 0, Q("1.75 in")))
sketch3.addConstraint(Sketcher.Constraint("Radius", 17, Q("0.75 in")))
sketch3.addConstraint(Sketcher.Constraint("DistanceX", 3, 1, 3, 2, Q("5.5 in")))
sketch3.addConstraint(Sketcher.Constraint("DistanceY", 1, 2, 1, 1, Q("5.125 in")))
pad2 = doc.addObject("PartDesign::Pad", "Pad001")
body.addObject(pad2)
pad2.Profile = sketch3
pad2.Length = Q("0.25 in")

doc.recompute()
